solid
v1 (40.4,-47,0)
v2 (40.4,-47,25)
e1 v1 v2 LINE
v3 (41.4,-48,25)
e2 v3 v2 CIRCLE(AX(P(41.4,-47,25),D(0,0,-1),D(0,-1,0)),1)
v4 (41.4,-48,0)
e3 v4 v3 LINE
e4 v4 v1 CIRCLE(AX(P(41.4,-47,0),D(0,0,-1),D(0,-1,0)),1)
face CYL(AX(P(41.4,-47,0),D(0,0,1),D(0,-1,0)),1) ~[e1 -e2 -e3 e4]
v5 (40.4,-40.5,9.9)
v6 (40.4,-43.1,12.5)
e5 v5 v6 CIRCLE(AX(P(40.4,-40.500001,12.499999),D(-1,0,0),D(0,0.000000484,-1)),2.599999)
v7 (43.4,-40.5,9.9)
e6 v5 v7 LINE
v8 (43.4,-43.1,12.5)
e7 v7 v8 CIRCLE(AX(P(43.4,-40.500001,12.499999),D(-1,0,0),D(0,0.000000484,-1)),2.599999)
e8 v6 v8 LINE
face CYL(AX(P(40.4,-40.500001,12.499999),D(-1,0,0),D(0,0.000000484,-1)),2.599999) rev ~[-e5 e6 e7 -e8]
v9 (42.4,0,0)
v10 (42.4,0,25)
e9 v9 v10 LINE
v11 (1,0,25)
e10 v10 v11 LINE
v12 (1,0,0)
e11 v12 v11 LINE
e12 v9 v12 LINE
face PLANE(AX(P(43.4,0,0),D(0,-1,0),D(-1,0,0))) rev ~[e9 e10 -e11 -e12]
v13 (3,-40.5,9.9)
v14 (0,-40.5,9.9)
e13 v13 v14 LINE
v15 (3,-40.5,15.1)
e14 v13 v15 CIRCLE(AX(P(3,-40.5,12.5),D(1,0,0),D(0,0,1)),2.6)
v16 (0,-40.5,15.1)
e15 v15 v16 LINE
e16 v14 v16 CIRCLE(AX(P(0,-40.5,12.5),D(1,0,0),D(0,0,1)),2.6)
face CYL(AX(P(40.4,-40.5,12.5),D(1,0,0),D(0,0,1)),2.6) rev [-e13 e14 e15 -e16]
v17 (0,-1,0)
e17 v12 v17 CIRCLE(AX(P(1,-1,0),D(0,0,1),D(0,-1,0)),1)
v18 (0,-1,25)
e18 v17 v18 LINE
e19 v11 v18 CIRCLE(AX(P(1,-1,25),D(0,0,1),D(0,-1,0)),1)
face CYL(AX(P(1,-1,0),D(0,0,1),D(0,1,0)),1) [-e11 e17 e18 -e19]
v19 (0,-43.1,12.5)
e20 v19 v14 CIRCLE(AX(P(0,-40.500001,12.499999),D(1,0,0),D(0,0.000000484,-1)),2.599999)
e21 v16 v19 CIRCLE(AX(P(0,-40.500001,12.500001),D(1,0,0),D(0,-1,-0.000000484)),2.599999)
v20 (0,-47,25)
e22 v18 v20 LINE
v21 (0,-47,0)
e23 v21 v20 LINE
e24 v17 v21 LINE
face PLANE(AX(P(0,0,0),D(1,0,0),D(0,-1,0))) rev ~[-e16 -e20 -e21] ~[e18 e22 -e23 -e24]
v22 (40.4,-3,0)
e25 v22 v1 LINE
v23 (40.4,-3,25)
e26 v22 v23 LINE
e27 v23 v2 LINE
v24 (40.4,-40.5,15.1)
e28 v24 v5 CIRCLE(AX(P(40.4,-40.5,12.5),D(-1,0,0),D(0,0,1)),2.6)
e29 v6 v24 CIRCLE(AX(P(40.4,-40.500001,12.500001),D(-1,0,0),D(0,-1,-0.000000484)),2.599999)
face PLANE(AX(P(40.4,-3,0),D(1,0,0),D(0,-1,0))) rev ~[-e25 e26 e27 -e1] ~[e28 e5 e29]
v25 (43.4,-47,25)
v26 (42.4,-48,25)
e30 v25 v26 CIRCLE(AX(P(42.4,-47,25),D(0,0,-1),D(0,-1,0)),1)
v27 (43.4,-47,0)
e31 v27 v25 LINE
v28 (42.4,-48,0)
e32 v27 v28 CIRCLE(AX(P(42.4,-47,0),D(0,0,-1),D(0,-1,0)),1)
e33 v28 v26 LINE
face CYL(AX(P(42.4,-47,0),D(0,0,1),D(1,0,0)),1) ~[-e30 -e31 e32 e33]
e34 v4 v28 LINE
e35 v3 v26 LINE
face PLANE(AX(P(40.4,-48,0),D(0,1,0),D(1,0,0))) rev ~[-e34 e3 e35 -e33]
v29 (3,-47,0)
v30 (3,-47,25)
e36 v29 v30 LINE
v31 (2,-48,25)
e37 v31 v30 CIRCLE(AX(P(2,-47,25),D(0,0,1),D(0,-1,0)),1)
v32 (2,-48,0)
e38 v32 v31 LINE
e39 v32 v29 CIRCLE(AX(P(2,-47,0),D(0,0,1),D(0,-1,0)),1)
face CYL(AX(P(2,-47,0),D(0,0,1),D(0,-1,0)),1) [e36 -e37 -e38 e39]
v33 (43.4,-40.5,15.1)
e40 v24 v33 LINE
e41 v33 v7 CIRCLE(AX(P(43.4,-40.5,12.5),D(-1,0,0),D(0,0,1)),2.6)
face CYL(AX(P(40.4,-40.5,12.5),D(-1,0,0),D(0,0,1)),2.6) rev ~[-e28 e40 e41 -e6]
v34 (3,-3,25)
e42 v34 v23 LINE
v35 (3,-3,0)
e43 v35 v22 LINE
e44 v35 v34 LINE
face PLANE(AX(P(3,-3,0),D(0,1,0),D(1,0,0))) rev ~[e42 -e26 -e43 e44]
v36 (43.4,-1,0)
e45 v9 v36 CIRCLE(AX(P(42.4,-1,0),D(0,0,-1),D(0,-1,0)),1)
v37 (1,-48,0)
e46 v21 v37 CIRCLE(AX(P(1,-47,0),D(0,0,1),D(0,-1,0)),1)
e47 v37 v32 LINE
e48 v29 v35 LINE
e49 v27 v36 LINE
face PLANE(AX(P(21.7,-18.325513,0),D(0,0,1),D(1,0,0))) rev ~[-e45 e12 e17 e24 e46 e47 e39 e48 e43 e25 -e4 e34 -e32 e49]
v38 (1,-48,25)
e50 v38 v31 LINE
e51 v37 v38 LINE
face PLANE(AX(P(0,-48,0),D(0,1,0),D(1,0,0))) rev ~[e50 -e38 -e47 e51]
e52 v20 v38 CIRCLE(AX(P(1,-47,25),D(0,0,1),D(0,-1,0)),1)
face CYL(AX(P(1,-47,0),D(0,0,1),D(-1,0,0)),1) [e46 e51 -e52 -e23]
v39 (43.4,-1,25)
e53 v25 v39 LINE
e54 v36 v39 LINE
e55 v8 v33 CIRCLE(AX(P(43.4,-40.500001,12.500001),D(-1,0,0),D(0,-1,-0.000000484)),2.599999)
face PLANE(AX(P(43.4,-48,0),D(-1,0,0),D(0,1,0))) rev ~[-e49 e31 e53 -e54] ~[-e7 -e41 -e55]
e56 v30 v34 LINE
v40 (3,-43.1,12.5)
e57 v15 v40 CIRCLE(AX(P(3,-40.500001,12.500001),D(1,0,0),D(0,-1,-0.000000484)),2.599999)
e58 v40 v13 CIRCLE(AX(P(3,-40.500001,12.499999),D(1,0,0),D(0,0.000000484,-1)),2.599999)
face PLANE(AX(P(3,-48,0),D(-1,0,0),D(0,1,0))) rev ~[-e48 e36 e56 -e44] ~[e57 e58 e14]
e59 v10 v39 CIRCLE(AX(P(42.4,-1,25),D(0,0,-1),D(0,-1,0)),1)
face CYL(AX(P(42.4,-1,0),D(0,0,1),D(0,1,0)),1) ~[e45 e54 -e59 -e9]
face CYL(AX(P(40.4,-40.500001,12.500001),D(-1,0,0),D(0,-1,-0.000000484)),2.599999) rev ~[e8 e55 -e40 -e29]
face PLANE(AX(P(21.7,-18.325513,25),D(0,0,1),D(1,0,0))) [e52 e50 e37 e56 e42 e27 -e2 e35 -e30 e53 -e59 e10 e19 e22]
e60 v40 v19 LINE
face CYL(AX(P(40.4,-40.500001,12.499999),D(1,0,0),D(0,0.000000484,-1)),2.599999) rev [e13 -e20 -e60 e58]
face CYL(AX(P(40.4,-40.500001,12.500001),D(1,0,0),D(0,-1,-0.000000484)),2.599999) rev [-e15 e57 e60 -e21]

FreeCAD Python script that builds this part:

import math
import FreeCAD as App
import Part
import Sketcher
Q = App.Units.Quantity


def edges_at(feature, points):
    """Names of the edges that pass closest to the given points."""
    edges = feature.Shape.Edges
    near = lambda p: min(range(len(edges)), key=lambda i: edges[i].distToShape(Part.Vertex(*p))[0])
    return sorted({f"Edge{near(p) + 1}" for p in points})


def add_polygon(sketch, points):
    """Adds a closed chain of lines whose ends are joined by coincident constraints."""
    first, n = sketch.GeometryCount, len(points)
    for a, b in zip(points, points[1:] + points[:1]):
        sketch.addGeometry(Part.LineSegment(App.Vector(*a, 0), App.Vector(*b, 0)), False)
    for i in range(n):
        sketch.addConstraint(Sketcher.Constraint("Coincident", first + i, 2, first + (i + 1) % n, 1))

doc = App.newDocument("Part")
params = doc.addObject("Spreadsheet::Sheet", "Params")
for row, (alias, value) in enumerate([
    ("sketch1_width", "3 mm"),
    ("sketch1_height", "48 mm"),
    ("sketch1_height2", "45 mm"),
    ("sketch1_width2", "43.4 mm"),
    ("pad1_length", "25 mm"),
    ("sketch2_radius", "2.6 mm"),
    ("fillet_radius", "1 mm"),
    ("fillet2_radius", "1 mm"),
], start=1):
    params.set(f"A{row}", alias)
    params.set(f"B{row}", "=" + value)
    params.setAlias(f"B{row}", alias)

body = doc.addObject("PartDesign::Body", "Body")

sketch1 = body.newObject("Sketcher::SketchObject", "Sketch")
sketch1.AttachmentSupport = (doc.getObject("XY_Plane"), [""])
sketch1.MapMode = "FlatFace"
add_polygon(sketch1, [(43.4, 0), (0, 0), (0, -48), (3, -48), (3, -3), (40.4, -3), (40.4, -48), (43.4, -48)])
sketch1.addConstraint([
    Sketcher.Constraint("Horizontal", 0),
    Sketcher.Constraint("Vertical", 1),
    Sketcher.Constraint("Horizontal", 2),
    Sketcher.Constraint("Vertical", 3),
    Sketcher.Constraint("Horizontal", 4),
    Sketcher.Constraint("Vertical", 5),
    Sketcher.Constraint("Horizontal", 6),
    Sketcher.Constraint("Vertical", 7),
    Sketcher.Constraint("Coincident", 0, 2, -1, 1),
    Sketcher.Constraint("Horizontal", 2, 2, 5, 2),
    Sketcher.Constraint("Equal", 2, 6),
    Sketcher.Constraint("DistanceX", 2, 1, 2, 2, Q("3 mm")),
    Sketcher.Constraint("DistanceY", 1, 2, 1, 1, Q("48 mm")),
    Sketcher.Constraint("DistanceY", 3, 1, 3, 2, Q("45 mm")),
    Sketcher.Constraint("DistanceX", 0, 2, 0, 1, Q("43.4 mm")),
])
sketch1.setExpression("Constraints[19]", "Params.sketch1_width")
sketch1.setExpression("Constraints[20]", "Params.sketch1_height")
sketch1.setExpression("Constraints[21]", "Params.sketch1_height2")
sketch1.setExpression("Constraints[22]", "Params.sketch1_width2")
pad1 = body.newObject("PartDesign::Pad", "Pad")
pad1.Profile = sketch1
pad1.setExpression("Length", "Params.pad1_length")

sketch2 = body.newObject("Sketcher::SketchObject", "Sketch001")
sketch2.AttachmentSupport = (doc.getObject("YZ_Plane"), [""])
sketch2.MapMode = "FlatFace"
sketch2.AttachmentOffset = App.Placement(App.Vector(0, 0, 40.4), App.Rotation())
sketch2.addGeometry([
    Part.ArcOfCircle(Part.Circle(App.Vector(-40.5, 12.5, 0), App.Vector(0, 0, 1), 2.6), math.radians(-90), math.radians(90)),
    Part.ArcOfCircle(Part.Circle(App.Vector(-40.5, 12.5, 0), App.Vector(0, 0, 1), 2.6), math.radians(180), math.radians(270)),
    Part.ArcOfCircle(Part.Circle(App.Vector(-40.5, 12.5, 0), App.Vector(0, 0, 1), 2.6), math.radians(90), math.radians(180)),
], False)
sketch2.addConstraint([
    Sketcher.Constraint("Tangent", 0, 1, 1, 2),
    Sketcher.Constraint("Tangent", 1, 1, 2, 2),
    Sketcher.Constraint("Tangent", 2, 1, 0, 2),
    Sketcher.Constraint("Horizontal", 2, 3, 1, 1),
    Sketcher.Constraint("Vertical", 2, 3, 0, 1),
    Sketcher.Constraint("Vertical", 0, 1, 2, 1),
    Sketcher.Constraint("Radius", 0, Q("2.6 mm")),
    Sketcher.Constraint("DistanceX", 0, 3, -1, 1, Q("40.5 mm")),
    Sketcher.Constraint("DistanceY", -1, 1, 0, 3, Q("12.5 mm")),
])
sketch2.setExpression("Constraints[6]", "Params.sketch2_radius")
pocket1 = body.newObject("PartDesign::Pocket", "Pocket")
pocket1.Profile = sketch2
pocket1.Type = "ThroughAll"
pocket1.Midplane = True
doc.recompute()

fillet = body.newObject("PartDesign::Fillet", "Fillet")
fillet.Base = (pocket1, edges_at(pocket1, [
    (0, -48, 12.5),
    (3, -48, 12.5),
    (40.4, -48, 12.5),
    (43.4, -48, 12.5),
    (0, 0, 12.5),
]))
fillet.setExpression("Radius", "Params.fillet_radius")
doc.recompute()

fillet2 = body.newObject("PartDesign::Fillet", "Fillet001")
fillet2.Base = (fillet, edges_at(fillet, [(43.4, 0, 12.5)]))
fillet2.setExpression("Radius", "Params.fillet2_radius")

doc.recompute()
